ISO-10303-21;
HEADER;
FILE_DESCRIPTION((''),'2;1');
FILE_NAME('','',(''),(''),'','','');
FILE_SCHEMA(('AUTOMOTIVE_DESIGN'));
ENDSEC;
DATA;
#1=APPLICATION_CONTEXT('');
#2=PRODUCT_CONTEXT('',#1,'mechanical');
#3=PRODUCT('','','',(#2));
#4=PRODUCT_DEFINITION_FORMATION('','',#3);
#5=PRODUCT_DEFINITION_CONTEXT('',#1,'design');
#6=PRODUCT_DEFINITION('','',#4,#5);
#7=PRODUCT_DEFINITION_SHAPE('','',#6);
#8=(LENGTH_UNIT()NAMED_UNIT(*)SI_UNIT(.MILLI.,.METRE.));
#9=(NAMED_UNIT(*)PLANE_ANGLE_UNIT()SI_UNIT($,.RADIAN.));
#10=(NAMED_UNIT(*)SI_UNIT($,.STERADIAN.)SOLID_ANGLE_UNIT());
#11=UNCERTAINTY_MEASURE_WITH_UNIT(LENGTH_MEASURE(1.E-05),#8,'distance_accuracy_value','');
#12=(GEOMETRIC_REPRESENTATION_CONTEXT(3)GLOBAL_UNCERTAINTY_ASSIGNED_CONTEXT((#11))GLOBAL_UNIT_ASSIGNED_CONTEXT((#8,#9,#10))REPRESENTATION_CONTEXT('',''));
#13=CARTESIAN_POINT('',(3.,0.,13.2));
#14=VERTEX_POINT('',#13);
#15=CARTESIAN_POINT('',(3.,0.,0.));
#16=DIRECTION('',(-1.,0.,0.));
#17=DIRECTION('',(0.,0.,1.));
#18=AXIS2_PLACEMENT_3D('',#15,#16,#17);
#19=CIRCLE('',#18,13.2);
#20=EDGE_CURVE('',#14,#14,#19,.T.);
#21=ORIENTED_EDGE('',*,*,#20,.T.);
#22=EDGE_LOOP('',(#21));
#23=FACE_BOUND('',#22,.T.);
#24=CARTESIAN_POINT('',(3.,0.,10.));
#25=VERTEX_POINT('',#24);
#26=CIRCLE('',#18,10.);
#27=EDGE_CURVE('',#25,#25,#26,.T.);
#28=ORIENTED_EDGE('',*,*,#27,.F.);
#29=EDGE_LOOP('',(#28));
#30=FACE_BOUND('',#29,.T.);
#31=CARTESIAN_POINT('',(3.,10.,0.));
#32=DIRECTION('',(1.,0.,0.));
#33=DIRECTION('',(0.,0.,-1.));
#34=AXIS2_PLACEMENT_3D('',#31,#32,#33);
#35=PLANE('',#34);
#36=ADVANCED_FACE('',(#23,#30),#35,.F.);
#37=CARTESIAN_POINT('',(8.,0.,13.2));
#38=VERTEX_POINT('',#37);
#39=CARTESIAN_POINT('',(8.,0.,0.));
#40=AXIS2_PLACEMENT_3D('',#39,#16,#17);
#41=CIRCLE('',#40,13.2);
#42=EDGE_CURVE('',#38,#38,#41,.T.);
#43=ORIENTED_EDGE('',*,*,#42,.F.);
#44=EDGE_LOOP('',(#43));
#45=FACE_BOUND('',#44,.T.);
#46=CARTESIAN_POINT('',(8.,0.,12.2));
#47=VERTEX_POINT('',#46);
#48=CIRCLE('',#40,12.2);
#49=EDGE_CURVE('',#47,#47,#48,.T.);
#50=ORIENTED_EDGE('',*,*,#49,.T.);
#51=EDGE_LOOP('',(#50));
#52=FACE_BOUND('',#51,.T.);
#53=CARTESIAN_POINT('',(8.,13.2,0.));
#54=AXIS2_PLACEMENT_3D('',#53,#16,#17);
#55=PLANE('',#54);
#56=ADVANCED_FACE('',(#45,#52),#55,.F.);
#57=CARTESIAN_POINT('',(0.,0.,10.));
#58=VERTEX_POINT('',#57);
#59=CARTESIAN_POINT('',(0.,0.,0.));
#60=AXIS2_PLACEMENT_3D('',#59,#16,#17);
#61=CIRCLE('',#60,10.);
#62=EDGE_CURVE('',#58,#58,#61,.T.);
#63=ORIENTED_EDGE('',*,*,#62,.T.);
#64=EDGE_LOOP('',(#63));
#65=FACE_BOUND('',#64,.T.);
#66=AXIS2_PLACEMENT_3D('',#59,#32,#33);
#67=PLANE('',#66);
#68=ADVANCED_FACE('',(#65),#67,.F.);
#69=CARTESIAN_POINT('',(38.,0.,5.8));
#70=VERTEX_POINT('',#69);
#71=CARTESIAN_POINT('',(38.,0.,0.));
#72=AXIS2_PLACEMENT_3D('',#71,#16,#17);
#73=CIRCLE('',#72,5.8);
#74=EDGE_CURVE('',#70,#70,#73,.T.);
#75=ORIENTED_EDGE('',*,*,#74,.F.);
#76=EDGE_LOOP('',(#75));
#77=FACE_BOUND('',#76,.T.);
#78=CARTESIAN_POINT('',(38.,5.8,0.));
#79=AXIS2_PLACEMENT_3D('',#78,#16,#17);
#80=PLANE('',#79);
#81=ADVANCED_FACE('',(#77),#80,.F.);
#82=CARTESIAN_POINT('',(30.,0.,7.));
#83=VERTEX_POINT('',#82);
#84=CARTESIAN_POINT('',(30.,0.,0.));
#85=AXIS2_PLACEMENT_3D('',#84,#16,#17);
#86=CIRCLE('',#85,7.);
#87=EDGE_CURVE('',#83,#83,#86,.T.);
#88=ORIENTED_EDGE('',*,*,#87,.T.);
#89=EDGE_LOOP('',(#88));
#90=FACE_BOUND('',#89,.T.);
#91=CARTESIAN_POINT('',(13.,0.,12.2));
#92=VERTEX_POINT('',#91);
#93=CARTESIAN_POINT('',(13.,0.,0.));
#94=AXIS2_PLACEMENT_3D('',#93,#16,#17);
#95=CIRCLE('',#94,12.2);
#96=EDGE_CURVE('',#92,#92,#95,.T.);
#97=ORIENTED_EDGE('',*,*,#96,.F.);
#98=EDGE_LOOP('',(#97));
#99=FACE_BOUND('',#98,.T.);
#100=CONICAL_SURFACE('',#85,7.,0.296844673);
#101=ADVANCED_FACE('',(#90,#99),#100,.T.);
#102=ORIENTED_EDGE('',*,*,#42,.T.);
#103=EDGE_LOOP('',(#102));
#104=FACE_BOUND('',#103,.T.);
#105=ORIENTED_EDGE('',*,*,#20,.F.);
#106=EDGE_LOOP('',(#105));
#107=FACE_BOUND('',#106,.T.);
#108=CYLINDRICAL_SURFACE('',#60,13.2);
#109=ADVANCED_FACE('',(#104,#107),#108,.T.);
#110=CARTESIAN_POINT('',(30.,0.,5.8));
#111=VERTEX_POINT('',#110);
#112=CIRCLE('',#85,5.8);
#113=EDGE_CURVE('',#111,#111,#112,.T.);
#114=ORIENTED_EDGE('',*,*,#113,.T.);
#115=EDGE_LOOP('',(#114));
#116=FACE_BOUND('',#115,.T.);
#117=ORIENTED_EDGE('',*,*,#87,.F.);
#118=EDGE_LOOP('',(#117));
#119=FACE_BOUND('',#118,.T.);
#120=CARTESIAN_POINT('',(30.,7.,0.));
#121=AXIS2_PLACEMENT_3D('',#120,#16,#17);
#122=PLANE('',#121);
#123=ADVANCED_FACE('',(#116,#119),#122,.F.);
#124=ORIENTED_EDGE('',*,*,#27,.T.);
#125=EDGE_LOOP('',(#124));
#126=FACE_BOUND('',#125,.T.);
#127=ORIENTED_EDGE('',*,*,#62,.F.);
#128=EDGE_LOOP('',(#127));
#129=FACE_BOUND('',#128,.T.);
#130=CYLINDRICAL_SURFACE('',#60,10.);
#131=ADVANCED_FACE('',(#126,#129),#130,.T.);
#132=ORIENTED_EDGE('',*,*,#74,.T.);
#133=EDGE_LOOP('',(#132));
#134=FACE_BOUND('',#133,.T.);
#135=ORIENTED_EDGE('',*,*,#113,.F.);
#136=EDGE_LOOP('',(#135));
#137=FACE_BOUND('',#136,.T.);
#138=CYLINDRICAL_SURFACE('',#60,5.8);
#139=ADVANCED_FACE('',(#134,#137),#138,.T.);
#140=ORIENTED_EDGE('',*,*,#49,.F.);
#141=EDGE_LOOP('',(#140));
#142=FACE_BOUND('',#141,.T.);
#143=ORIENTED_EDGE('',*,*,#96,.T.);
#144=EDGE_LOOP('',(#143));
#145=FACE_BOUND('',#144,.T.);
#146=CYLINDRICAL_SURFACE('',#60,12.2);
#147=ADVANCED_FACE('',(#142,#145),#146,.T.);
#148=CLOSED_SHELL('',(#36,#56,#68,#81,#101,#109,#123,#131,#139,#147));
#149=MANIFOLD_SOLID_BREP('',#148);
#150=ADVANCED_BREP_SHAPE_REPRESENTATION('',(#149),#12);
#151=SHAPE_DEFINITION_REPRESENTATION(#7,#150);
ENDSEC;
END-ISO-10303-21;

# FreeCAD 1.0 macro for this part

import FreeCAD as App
import Part
import Sketcher

V = App.Vector


def add_polygon(sketch, points):
    """Adds a closed chain of lines whose ends are joined by coincident constraints."""
    first, n = sketch.GeometryCount, len(points)
    for a, b in zip(points, points[1:] + points[:1]):
        sketch.addGeometry(Part.LineSegment(App.Vector(*a, 0), App.Vector(*b, 0)), False)
    for i in range(n):
        sketch.addConstraint(Sketcher.Constraint("Coincident", first + i, 2, first + (i + 1) % n, 1))

doc = App.newDocument("Part")
body = doc.addObject("PartDesign::Body", "Body")

sketch1 = body.newObject("Sketcher::SketchObject", "Sketch")
sketch1.AttachmentSupport = (doc.getObject("XY_Plane"), [""])
sketch1.MapMode = "FlatFace"
add_polygon(sketch1, [(0, 10), (0, 0), (38, 0), (38, 5.8), (30, 5.8), (30, 7), (13, 12.2), (8, 12.2), (8, 13.2), (3, 13.2), (3, 10)])
sketch1.addConstraint([
    Sketcher.Constraint("Vertical", 0),
    Sketcher.Constraint("Horizontal", 1),
    Sketcher.Constraint("Vertical", 2),
    Sketcher.Constraint("Horizontal", 3),
    Sketcher.Constraint("Vertical", 4),
    Sketcher.Constraint("Horizontal", 6),
    Sketcher.Constraint("Vertical", 7),
    Sketcher.Constraint("Horizontal", 8),
    Sketcher.Constraint("Vertical", 9),
    Sketcher.Constraint("Horizontal", 10),
    Sketcher.Constraint("Coincident", 0, 2, -1, 1),
    Sketcher.Constraint("Equal", 6, 8),
    Sketcher.Constraint("DistanceX", 1, 1, 1, 2, 38.0),
    Sketcher.Constraint("DistanceX", 3, 2, 3, 1, 8.0),
    Sketcher.Constraint("DistanceX", 6, 2, 6, 1, 5.0),
    Sketcher.Constraint("DistanceX", 10, 2, 10, 1, 3.0),
    Sketcher.Constraint("DistanceY", 0, 2, 0, 1, 10.0),
    Sketcher.Constraint("DistanceY", 7, 1, 7, 2, 1.0),
    Sketcher.Constraint("DistanceY", 2, 1, 2, 2, 5.8),
    Sketcher.Constraint("DistanceY", 4, 1, 4, 2, 1.2),
    Sketcher.Constraint("DistanceY", 9, 2, 9, 1, 3.2),
])
revolution = body.newObject("PartDesign::Revolution", "Revolution")
revolution.Profile = sketch1
revolution.ReferenceAxis = (sketch1, ["H_Axis"])
revolution.Angle = 360

doc.recompute()
